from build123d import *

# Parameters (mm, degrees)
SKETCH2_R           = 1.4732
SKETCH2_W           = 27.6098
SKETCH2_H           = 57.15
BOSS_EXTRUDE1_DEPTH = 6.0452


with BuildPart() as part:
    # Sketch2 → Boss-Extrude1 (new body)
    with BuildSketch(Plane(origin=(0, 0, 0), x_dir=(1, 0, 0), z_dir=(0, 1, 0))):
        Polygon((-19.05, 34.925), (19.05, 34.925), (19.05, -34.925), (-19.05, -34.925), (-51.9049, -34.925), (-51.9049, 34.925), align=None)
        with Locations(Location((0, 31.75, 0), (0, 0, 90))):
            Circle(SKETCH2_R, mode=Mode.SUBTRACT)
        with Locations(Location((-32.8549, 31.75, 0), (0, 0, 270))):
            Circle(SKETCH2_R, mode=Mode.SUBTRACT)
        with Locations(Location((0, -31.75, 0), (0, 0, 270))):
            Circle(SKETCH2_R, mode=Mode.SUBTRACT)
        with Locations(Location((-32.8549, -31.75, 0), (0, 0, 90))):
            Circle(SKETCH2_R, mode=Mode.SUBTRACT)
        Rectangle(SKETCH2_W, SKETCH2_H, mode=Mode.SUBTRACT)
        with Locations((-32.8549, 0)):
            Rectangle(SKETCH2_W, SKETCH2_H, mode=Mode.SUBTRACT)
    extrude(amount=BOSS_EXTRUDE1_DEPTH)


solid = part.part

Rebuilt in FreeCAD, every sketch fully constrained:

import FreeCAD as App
import Part
import Sketcher

V = App.Vector
Q = App.Units.Quantity

doc = App.newDocument("Part")
params = doc.addObject("Spreadsheet::Sheet", "Params")
for row, (alias, value) in enumerate([
    ("sketch1_diameter", "0.116 in"),
    ("sketch1_height", "2.75 in"),
    ("sketch1_height2", "2.25 in"),
    ("sketch1_width", "1.087 in"),
    ("pad1_length", "0.238 in"),
], start=1):
    params.set(f"A{row}", alias)
    params.set(f"B{row}", "=" + value)
    params.setAlias(f"B{row}", alias)

body = doc.addObject("PartDesign::Body", "Body")

sketch1 = body.newObject("Sketcher::SketchObject", "Sketch")
sketch1.AttachmentSupport = (doc.getObject("XZ_Plane"), [""])
sketch1.MapMode = "FlatFace"
sketch1.addGeometry([
    Part.LineSegment(V(19.1, -34.9, 0), V(-51.9, -34.9, 0)),
    Part.LineSegment(V(-51.9, -34.9, 0), V(-51.9, 34.9, 0)),
    Part.LineSegment(V(-51.9, 34.9, 0), V(19.1, 34.9, 0)),
    Part.LineSegment(V(19.1, 34.9, 0), V(19.1, -34.9, 0)),
    Part.Circle(V(0, 31.8, 0), V(0, 0, 1), 1.5),
    Part.Circle(V(-32.9, 31.8, 0), V(0, 0, 1), 1.5),
    Part.LineSegment(V(-13.8, 28.6, 0), V(-13.8, -28.6, 0)),
    Part.LineSegment(V(-13.8, -28.6, 0), V(13.8, -28.6, 0)),
    Part.LineSegment(V(13.8, -28.6, 0), V(13.8, 28.6, 0)),
    Part.LineSegment(V(13.8, 28.6, 0), V(-13.8, 28.6, 0)),
    Part.Circle(V(0, -31.8, 0), V(0, 0, 1), 1.5),
    Part.LineSegment(V(-46.7, 28.6, 0), V(-46.7, -28.6, 0)),
    Part.LineSegment(V(-46.7, -28.6, 0), V(-19.1, -28.6, 0)),
    Part.LineSegment(V(-19.1, -28.6, 0), V(-19.1, 28.6, 0)),
    Part.LineSegment(V(-19.1, 28.6, 0), V(-46.7, 28.6, 0)),
    Part.Circle(V(-32.9, -31.8, 0), V(0, 0, 1), 1.5),
], False)
sketch1.addConstraint([
    Sketcher.Constraint("Coincident", 0, 2, 1, 1),
    Sketcher.Constraint("Coincident", 1, 2, 2, 1),
    Sketcher.Constraint("Coincident", 2, 2, 3, 1),
    Sketcher.Constraint("Coincident", 3, 2, 0, 1),
    Sketcher.Constraint("Coincident", 6, 2, 7, 1),
    Sketcher.Constraint("Coincident", 7, 2, 8, 1),
    Sketcher.Constraint("Coincident", 8, 2, 9, 1),
    Sketcher.Constraint("Coincident", 9, 2, 6, 1),
    Sketcher.Constraint("Coincident", 11, 2, 12, 1),
    Sketcher.Constraint("Coincident", 12, 2, 13, 1),
    Sketcher.Constraint("Coincident", 13, 2, 14, 1),
    Sketcher.Constraint("Coincident", 14, 2, 11, 1),
    Sketcher.Constraint("Horizontal", 0),
    Sketcher.Constraint("Vertical", 1),
    Sketcher.Constraint("Horizontal", 2),
    Sketcher.Constraint("Vertical", 3),
    Sketcher.Constraint("Vertical", 6),
    Sketcher.Constraint("Horizontal", 7),
    Sketcher.Constraint("Vertical", 8),
    Sketcher.Constraint("Horizontal", 9),
    Sketcher.Constraint("Vertical", 11),
    Sketcher.Constraint("Horizontal", 12),
    Sketcher.Constraint("Vertical", 13),
    Sketcher.Constraint("Horizontal", 14),
    Sketcher.Constraint("Equal", 4, 5),
    Sketcher.Constraint("Equal", 5, 10),
    Sketcher.Constraint("Equal", 10, 15),
    Sketcher.Constraint("Symmetric", 4, 3, 10, 3, -1, 1),
    Sketcher.Constraint("Symmetric", 6, 2, 8, 2, -1, 1),
    Sketcher.Constraint("Symmetric", 5, 3, 15, 3, -1),
    Sketcher.Constraint("PointOnObject", 4, 3, -2),
    Sketcher.Constraint("Horizontal", 4, 3, 5, 3),
    Sketcher.Constraint("Horizontal", 7, 2, 11, 2),
    Sketcher.Constraint("Horizontal", 9, 2, 13, 2),
    Sketcher.Constraint("Equal", 9, 12),
    Sketcher.Constraint("Diameter", 4, Q("0.116 in")),
    Sketcher.Constraint("DistanceY", 1, 1, 1, 2, Q("2.75 in")),
    Sketcher.Constraint("DistanceY", 6, 2, 6, 1, Q("2.25 in")),
    Sketcher.Constraint("DistanceY", 10, 3, 4, 3, Q("2.5 in")),
    Sketcher.Constraint("DistanceX", 0, 2, 6, 2, Q("1.5 in")),
    Sketcher.Constraint("DistanceX", 7, 1, 7, 2, Q("1.087 in")),
    Sketcher.Constraint("DistanceX", -1, 1, 2, 2, Q("0.75 in")),
    Sketcher.Constraint("DistanceX", 12, 2, -1, 1, Q("0.75 in")),
    Sketcher.Constraint("DistanceX", 0, 2, 15, 3, Q("0.75 in")),
    Sketcher.Constraint("DistanceY", 3, 2, 6, 2, Q("0.25 in")),
])
sketch1.setExpression("Constraints[35]", "Params.sketch1_diameter")
sketch1.setExpression("Constraints[36]", "Params.sketch1_height")
sketch1.setExpression("Constraints[37]", "Params.sketch1_height2")
sketch1.setExpression("Constraints[40]", "Params.sketch1_width")
pad1 = body.newObject("PartDesign::Pad", "Pad")
pad1.Profile = sketch1
pad1.setExpression("Length", "Params.pad1_length")
pad1.Reversed = True

doc.recompute()
